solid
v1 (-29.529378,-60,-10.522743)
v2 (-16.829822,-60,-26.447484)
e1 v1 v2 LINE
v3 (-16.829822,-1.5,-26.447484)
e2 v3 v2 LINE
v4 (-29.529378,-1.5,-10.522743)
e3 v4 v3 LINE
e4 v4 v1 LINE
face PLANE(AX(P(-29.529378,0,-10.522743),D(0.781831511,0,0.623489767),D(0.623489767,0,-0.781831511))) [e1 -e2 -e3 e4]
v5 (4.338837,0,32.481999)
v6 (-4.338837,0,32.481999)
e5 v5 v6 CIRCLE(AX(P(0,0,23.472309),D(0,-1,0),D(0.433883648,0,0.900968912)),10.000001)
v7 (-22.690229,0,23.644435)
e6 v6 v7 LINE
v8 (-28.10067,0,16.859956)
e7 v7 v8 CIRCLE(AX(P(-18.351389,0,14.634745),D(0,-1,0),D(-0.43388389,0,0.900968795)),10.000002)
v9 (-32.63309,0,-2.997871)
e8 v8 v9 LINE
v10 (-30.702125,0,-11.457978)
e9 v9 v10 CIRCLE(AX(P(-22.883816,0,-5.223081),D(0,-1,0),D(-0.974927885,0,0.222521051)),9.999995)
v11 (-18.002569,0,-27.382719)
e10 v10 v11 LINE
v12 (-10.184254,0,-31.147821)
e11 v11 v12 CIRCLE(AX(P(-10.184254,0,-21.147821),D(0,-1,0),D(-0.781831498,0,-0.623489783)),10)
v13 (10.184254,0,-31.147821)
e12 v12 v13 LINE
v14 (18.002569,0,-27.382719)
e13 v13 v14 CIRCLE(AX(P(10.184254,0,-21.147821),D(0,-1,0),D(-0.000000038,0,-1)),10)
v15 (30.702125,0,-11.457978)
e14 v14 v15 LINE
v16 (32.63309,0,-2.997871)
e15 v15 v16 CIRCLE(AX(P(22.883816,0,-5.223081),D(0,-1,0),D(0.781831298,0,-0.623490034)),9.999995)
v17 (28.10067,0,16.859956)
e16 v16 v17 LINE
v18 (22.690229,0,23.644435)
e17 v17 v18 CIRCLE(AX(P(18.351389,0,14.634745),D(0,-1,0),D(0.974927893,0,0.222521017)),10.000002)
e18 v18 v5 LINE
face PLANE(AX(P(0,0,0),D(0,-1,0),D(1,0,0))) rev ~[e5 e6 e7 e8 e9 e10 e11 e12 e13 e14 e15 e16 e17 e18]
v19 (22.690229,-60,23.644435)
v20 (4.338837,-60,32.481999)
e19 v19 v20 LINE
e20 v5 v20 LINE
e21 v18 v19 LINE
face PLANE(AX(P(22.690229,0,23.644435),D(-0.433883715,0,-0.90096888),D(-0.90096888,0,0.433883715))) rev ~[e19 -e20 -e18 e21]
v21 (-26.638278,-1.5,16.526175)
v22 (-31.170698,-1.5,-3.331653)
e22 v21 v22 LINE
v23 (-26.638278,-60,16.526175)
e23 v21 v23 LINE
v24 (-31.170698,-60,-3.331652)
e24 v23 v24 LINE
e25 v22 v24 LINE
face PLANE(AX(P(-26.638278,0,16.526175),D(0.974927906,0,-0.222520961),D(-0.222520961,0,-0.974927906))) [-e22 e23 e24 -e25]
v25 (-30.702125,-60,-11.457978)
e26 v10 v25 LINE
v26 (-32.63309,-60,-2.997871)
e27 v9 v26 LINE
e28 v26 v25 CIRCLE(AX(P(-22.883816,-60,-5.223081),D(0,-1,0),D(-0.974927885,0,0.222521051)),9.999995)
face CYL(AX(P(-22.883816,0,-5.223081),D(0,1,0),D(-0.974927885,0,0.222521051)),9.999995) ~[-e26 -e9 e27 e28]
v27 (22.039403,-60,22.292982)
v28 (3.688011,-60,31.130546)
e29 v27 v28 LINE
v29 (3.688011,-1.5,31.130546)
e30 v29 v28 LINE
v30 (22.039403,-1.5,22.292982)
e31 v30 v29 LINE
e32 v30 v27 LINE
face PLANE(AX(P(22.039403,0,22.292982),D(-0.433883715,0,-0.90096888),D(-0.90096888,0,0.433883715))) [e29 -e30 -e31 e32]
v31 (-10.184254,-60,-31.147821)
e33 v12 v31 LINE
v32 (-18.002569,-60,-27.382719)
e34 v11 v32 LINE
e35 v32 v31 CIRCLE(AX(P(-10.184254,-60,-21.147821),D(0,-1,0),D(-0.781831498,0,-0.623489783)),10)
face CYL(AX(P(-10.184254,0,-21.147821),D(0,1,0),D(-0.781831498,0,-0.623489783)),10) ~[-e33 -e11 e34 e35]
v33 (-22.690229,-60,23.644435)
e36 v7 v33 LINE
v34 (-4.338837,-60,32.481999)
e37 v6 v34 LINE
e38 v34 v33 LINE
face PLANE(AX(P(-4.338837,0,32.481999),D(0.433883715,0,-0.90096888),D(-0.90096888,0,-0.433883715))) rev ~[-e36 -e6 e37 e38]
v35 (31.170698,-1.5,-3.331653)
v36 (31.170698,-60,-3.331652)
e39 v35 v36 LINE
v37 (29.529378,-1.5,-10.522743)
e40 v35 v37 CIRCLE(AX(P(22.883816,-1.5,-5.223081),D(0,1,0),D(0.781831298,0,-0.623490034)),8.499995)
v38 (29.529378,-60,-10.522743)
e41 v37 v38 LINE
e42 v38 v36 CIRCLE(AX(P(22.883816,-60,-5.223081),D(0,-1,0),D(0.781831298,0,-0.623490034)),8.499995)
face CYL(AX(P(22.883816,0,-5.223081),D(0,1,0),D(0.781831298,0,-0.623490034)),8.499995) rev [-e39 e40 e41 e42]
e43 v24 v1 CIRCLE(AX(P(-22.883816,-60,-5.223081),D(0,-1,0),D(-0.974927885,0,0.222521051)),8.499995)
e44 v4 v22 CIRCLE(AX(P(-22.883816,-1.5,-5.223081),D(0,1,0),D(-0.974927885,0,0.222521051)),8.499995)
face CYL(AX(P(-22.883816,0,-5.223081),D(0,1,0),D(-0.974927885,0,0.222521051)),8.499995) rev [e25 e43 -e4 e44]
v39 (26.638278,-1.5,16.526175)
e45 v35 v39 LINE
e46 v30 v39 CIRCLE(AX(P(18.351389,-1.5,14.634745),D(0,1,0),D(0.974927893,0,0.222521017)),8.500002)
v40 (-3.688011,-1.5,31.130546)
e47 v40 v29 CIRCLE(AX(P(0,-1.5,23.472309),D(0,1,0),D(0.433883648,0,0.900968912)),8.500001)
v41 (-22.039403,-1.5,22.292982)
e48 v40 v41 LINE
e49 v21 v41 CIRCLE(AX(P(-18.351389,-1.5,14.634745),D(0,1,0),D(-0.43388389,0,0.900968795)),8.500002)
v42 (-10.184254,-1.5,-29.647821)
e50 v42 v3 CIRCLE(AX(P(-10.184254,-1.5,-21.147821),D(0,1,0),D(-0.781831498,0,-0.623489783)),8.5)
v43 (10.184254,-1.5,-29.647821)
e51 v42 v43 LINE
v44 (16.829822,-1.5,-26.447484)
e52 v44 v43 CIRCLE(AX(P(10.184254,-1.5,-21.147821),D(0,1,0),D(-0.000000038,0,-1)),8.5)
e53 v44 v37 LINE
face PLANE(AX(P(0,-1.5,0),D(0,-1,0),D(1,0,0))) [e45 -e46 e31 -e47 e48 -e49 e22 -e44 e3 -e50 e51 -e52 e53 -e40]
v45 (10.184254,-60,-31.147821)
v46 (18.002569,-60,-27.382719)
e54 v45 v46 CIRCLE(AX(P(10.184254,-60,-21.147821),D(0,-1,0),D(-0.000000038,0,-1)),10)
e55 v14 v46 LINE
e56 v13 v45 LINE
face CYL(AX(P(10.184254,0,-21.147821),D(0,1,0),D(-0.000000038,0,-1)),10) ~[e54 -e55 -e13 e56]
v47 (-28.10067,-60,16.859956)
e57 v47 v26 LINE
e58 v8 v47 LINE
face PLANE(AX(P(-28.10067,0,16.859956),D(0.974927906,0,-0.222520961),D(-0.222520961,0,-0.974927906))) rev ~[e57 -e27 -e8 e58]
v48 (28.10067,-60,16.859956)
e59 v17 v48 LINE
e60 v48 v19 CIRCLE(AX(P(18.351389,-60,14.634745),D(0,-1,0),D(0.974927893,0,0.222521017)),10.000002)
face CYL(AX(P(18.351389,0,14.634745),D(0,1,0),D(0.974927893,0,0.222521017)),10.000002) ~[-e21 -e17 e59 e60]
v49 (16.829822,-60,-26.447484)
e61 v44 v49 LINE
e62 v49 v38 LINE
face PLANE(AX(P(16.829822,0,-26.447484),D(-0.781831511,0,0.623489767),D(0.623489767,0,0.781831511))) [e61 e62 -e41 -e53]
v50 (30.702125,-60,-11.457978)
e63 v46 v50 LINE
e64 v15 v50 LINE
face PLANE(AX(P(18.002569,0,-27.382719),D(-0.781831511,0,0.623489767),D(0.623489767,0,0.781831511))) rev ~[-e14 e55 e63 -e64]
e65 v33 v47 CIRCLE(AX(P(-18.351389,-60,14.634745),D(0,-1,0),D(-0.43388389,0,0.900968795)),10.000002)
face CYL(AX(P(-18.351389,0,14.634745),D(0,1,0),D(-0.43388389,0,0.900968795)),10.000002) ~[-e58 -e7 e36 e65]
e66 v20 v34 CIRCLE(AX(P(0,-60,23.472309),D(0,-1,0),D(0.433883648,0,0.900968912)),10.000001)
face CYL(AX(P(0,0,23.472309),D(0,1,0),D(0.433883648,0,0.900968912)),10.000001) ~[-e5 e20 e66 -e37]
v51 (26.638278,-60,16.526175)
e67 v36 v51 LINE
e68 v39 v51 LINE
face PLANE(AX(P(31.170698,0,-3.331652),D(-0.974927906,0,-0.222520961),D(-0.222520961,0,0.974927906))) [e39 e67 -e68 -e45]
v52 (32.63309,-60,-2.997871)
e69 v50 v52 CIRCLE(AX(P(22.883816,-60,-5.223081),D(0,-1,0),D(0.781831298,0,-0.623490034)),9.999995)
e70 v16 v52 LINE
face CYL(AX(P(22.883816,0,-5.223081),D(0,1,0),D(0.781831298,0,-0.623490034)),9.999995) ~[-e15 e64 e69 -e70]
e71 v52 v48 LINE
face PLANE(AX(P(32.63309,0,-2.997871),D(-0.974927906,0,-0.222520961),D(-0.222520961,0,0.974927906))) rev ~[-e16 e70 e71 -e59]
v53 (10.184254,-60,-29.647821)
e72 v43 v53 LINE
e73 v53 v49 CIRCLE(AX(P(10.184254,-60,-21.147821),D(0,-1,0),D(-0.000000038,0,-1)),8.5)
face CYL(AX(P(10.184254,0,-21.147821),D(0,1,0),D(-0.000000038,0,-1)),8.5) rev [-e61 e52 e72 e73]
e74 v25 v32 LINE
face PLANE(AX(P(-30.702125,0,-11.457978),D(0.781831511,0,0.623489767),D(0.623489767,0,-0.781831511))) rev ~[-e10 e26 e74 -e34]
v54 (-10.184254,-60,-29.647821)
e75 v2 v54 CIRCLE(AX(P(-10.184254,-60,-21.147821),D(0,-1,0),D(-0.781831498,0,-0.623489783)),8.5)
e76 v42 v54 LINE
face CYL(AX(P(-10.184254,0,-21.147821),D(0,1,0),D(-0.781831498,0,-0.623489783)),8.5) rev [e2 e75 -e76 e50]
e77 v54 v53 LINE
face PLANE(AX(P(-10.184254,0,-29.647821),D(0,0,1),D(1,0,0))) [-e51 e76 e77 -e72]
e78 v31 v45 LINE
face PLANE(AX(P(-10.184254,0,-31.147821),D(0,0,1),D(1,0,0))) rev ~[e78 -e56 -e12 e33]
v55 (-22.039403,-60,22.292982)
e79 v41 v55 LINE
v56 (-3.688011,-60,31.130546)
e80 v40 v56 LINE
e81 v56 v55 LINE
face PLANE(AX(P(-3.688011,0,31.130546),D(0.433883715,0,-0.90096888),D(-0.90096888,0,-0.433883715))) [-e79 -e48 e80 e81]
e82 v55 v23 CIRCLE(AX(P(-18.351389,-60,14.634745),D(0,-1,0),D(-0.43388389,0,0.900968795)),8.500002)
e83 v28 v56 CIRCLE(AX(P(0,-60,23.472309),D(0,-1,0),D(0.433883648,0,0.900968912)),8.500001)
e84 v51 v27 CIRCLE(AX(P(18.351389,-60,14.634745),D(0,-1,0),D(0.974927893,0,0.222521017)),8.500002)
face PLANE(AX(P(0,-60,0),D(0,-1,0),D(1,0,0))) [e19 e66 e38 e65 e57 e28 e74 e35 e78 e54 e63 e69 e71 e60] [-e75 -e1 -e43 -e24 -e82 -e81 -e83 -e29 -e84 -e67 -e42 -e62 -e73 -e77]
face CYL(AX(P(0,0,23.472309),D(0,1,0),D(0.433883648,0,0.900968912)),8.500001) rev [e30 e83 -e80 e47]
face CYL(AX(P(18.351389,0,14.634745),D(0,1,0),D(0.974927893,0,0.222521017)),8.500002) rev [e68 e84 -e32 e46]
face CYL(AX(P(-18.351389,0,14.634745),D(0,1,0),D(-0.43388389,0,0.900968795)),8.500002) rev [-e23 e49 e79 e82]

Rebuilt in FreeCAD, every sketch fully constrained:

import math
import FreeCAD as App
import Part
import Sketcher

V = App.Vector
Q = App.Units.Quantity


def faces_at(feature, points):
    """Names of the faces that lie closest to the given points."""
    faces = feature.Shape.Faces
    near = lambda p: min(range(len(faces)), key=lambda i: faces[i].distToShape(Part.Vertex(*p))[0])
    return sorted({f"Face{near(p) + 1}" for p in points})

doc = App.newDocument("Part")
params = doc.addObject("Spreadsheet::Sheet", "Params")
for row, (alias, value) in enumerate([
    ("sketch1_radius", "10.000001 mm"),
    ("pad1_length", "60 mm"),
    ("thickness_wall", "1.5 mm"),
], start=1):
    params.set(f"A{row}", alias)
    params.set(f"B{row}", "=" + value)
    params.setAlias(f"B{row}", alias)

body = doc.addObject("PartDesign::Body", "Body")

# Sketch on XZ plane
sketch1 = doc.addObject("Sketcher::SketchObject", "Sketch")
body.addObject(sketch1)
sketch1.AttachmentSupport = (doc.XZ_Plane, [""])
sketch1.MapMode = "FlatFace"
sketch1.addGeometry([
    Part.LineSegment(V(22.690229, 23.644435, 0), V(4.338837, 32.481999, 0)),  # 0
    Part.ArcOfCircle(Part.Circle(V(0, 23.472309, 0), V(0, 0, 1), 10.000001), math.radians(64.28572), math.radians(115.71428)),  # 1
    Part.LineSegment(V(-4.338837, 32.481999, 0), V(-22.690229, 23.644435, 0)),  # 2
    Part.ArcOfCircle(Part.Circle(V(-18.351389, 14.634745, 0), V(0, 0, 1), 10.000002), math.radians(115.714295), math.radians(167.142852)),  # 3
    Part.LineSegment(V(-28.10067, 16.859956, 0), V(-32.63309, -2.997871, 0)),  # 4
    Part.ArcOfCircle(Part.Circle(V(-22.883816, -5.223081, 0), V(0, 0, 1), 9.999995), math.radians(167.14285), math.radians(218.571446)),  # 5
    Part.LineSegment(V(-30.702125, -11.457978, 0), V(-18.002569, -27.382719, 0)),  # 6
    Part.ArcOfCircle(Part.Circle(V(-10.184254, -21.147821, 0), V(0, 0, 1), 10), math.radians(-141.428573), math.radians(-89.999998)),  # 7
    Part.LineSegment(V(-10.184254, -31.147821, 0), V(10.184254, -31.147821, 0)),  # 8
    Part.ArcOfCircle(Part.Circle(V(10.184254, -21.147821, 0), V(0, 0, 1), 10), math.radians(-90.000002), math.radians(-38.571427)),  # 9
    Part.LineSegment(V(18.002569, -27.382719, 0), V(30.702125, -11.457978, 0)),  # 10
    Part.ArcOfCircle(Part.Circle(V(22.883816, -5.223081, 0), V(0, 0, 1), 9.999995), math.radians(-38.571446), math.radians(12.85715)),  # 11
    Part.LineSegment(V(32.63309, -2.997871, 0), V(28.10067, 16.859956, 0)),  # 12
    Part.ArcOfCircle(Part.Circle(V(18.351389, 14.634745, 0), V(0, 0, 1), 10.000002), math.radians(12.857148), math.radians(64.285705)),  # 13
], False)
sketch1.addConstraint([
    Sketcher.Constraint("Tangent", 0, 2, 1, 1),
    Sketcher.Constraint("Tangent", 1, 2, 2, 1),
    Sketcher.Constraint("Tangent", 2, 2, 3, 1),
    Sketcher.Constraint("Tangent", 3, 2, 4, 1),
    Sketcher.Constraint("Tangent", 4, 2, 5, 1),
    Sketcher.Constraint("Tangent", 5, 2, 6, 1),
    Sketcher.Constraint("Tangent", 6, 2, 7, 1),
    Sketcher.Constraint("Tangent", 7, 2, 8, 1),
    Sketcher.Constraint("Tangent", 8, 2, 9, 1),
    Sketcher.Constraint("Tangent", 9, 2, 10, 1),
    Sketcher.Constraint("Tangent", 10, 2, 11, 1),
    Sketcher.Constraint("Tangent", 11, 2, 12, 1),
    Sketcher.Constraint("Tangent", 12, 2, 13, 1),
    Sketcher.Constraint("Tangent", 13, 2, 0, 1),
    Sketcher.Constraint("Horizontal", 8),
    Sketcher.Constraint("Equal", 1, 3),
    Sketcher.Constraint("Equal", 1, 7),
    Sketcher.Constraint("Equal", 7, 9),
    Sketcher.Constraint("Equal", 5, 11),
    Sketcher.Constraint("Equal", 3, 13),
    Sketcher.Constraint("Symmetric", 5, 3, 11, 3, -2),
    Sketcher.Constraint("Symmetric", 3, 3, 13, 3, -2),
    Sketcher.Constraint("PointOnObject", 1, 3, -2),
    Sketcher.Constraint("Horizontal", 6, 2, 9, 2),
    Sketcher.Constraint("Equal", 2, 4),
    Sketcher.Constraint("Equal", 4, 6),
    Sketcher.Constraint("Radius", 1, Q("10.000001 mm")),
    Sketcher.Constraint("DistanceY", -1, 1, 0, 2, Q("32.481999 mm")),
    Sketcher.Constraint("Radius", 5, Q("9.999995 mm")),
    Sketcher.Constraint("DistanceX", 4, 2, 3, 3, Q("14.281701 mm")),
    Sketcher.Constraint("DistanceY", 7, 2, 6, 2, Q("3.765102 mm")),
    Sketcher.Constraint("Distance", 0, Q("20.368508 mm")),
    Sketcher.Constraint("DistanceX", 8, 1, 8, 2, Q("20.368508 mm")),
])
sketch1.setExpression("Constraints[26]", "Params.sketch1_radius")
pad1 = doc.addObject("PartDesign::Pad", "Pad")
body.addObject(pad1)
pad1.Profile = sketch1
pad1.setExpression("Length", "Params.pad1_length")
doc.recompute()

thickness = doc.addObject("PartDesign::Thickness", "Thickness")
body.addObject(thickness)
thickness.Base = (pad1, faces_at(pad1, [(0, -60, 1.162)]))
thickness.setExpression("Value", "Params.thickness_wall")
thickness.Reversed = True
thickness.Join = "Arc"

doc.recompute()
